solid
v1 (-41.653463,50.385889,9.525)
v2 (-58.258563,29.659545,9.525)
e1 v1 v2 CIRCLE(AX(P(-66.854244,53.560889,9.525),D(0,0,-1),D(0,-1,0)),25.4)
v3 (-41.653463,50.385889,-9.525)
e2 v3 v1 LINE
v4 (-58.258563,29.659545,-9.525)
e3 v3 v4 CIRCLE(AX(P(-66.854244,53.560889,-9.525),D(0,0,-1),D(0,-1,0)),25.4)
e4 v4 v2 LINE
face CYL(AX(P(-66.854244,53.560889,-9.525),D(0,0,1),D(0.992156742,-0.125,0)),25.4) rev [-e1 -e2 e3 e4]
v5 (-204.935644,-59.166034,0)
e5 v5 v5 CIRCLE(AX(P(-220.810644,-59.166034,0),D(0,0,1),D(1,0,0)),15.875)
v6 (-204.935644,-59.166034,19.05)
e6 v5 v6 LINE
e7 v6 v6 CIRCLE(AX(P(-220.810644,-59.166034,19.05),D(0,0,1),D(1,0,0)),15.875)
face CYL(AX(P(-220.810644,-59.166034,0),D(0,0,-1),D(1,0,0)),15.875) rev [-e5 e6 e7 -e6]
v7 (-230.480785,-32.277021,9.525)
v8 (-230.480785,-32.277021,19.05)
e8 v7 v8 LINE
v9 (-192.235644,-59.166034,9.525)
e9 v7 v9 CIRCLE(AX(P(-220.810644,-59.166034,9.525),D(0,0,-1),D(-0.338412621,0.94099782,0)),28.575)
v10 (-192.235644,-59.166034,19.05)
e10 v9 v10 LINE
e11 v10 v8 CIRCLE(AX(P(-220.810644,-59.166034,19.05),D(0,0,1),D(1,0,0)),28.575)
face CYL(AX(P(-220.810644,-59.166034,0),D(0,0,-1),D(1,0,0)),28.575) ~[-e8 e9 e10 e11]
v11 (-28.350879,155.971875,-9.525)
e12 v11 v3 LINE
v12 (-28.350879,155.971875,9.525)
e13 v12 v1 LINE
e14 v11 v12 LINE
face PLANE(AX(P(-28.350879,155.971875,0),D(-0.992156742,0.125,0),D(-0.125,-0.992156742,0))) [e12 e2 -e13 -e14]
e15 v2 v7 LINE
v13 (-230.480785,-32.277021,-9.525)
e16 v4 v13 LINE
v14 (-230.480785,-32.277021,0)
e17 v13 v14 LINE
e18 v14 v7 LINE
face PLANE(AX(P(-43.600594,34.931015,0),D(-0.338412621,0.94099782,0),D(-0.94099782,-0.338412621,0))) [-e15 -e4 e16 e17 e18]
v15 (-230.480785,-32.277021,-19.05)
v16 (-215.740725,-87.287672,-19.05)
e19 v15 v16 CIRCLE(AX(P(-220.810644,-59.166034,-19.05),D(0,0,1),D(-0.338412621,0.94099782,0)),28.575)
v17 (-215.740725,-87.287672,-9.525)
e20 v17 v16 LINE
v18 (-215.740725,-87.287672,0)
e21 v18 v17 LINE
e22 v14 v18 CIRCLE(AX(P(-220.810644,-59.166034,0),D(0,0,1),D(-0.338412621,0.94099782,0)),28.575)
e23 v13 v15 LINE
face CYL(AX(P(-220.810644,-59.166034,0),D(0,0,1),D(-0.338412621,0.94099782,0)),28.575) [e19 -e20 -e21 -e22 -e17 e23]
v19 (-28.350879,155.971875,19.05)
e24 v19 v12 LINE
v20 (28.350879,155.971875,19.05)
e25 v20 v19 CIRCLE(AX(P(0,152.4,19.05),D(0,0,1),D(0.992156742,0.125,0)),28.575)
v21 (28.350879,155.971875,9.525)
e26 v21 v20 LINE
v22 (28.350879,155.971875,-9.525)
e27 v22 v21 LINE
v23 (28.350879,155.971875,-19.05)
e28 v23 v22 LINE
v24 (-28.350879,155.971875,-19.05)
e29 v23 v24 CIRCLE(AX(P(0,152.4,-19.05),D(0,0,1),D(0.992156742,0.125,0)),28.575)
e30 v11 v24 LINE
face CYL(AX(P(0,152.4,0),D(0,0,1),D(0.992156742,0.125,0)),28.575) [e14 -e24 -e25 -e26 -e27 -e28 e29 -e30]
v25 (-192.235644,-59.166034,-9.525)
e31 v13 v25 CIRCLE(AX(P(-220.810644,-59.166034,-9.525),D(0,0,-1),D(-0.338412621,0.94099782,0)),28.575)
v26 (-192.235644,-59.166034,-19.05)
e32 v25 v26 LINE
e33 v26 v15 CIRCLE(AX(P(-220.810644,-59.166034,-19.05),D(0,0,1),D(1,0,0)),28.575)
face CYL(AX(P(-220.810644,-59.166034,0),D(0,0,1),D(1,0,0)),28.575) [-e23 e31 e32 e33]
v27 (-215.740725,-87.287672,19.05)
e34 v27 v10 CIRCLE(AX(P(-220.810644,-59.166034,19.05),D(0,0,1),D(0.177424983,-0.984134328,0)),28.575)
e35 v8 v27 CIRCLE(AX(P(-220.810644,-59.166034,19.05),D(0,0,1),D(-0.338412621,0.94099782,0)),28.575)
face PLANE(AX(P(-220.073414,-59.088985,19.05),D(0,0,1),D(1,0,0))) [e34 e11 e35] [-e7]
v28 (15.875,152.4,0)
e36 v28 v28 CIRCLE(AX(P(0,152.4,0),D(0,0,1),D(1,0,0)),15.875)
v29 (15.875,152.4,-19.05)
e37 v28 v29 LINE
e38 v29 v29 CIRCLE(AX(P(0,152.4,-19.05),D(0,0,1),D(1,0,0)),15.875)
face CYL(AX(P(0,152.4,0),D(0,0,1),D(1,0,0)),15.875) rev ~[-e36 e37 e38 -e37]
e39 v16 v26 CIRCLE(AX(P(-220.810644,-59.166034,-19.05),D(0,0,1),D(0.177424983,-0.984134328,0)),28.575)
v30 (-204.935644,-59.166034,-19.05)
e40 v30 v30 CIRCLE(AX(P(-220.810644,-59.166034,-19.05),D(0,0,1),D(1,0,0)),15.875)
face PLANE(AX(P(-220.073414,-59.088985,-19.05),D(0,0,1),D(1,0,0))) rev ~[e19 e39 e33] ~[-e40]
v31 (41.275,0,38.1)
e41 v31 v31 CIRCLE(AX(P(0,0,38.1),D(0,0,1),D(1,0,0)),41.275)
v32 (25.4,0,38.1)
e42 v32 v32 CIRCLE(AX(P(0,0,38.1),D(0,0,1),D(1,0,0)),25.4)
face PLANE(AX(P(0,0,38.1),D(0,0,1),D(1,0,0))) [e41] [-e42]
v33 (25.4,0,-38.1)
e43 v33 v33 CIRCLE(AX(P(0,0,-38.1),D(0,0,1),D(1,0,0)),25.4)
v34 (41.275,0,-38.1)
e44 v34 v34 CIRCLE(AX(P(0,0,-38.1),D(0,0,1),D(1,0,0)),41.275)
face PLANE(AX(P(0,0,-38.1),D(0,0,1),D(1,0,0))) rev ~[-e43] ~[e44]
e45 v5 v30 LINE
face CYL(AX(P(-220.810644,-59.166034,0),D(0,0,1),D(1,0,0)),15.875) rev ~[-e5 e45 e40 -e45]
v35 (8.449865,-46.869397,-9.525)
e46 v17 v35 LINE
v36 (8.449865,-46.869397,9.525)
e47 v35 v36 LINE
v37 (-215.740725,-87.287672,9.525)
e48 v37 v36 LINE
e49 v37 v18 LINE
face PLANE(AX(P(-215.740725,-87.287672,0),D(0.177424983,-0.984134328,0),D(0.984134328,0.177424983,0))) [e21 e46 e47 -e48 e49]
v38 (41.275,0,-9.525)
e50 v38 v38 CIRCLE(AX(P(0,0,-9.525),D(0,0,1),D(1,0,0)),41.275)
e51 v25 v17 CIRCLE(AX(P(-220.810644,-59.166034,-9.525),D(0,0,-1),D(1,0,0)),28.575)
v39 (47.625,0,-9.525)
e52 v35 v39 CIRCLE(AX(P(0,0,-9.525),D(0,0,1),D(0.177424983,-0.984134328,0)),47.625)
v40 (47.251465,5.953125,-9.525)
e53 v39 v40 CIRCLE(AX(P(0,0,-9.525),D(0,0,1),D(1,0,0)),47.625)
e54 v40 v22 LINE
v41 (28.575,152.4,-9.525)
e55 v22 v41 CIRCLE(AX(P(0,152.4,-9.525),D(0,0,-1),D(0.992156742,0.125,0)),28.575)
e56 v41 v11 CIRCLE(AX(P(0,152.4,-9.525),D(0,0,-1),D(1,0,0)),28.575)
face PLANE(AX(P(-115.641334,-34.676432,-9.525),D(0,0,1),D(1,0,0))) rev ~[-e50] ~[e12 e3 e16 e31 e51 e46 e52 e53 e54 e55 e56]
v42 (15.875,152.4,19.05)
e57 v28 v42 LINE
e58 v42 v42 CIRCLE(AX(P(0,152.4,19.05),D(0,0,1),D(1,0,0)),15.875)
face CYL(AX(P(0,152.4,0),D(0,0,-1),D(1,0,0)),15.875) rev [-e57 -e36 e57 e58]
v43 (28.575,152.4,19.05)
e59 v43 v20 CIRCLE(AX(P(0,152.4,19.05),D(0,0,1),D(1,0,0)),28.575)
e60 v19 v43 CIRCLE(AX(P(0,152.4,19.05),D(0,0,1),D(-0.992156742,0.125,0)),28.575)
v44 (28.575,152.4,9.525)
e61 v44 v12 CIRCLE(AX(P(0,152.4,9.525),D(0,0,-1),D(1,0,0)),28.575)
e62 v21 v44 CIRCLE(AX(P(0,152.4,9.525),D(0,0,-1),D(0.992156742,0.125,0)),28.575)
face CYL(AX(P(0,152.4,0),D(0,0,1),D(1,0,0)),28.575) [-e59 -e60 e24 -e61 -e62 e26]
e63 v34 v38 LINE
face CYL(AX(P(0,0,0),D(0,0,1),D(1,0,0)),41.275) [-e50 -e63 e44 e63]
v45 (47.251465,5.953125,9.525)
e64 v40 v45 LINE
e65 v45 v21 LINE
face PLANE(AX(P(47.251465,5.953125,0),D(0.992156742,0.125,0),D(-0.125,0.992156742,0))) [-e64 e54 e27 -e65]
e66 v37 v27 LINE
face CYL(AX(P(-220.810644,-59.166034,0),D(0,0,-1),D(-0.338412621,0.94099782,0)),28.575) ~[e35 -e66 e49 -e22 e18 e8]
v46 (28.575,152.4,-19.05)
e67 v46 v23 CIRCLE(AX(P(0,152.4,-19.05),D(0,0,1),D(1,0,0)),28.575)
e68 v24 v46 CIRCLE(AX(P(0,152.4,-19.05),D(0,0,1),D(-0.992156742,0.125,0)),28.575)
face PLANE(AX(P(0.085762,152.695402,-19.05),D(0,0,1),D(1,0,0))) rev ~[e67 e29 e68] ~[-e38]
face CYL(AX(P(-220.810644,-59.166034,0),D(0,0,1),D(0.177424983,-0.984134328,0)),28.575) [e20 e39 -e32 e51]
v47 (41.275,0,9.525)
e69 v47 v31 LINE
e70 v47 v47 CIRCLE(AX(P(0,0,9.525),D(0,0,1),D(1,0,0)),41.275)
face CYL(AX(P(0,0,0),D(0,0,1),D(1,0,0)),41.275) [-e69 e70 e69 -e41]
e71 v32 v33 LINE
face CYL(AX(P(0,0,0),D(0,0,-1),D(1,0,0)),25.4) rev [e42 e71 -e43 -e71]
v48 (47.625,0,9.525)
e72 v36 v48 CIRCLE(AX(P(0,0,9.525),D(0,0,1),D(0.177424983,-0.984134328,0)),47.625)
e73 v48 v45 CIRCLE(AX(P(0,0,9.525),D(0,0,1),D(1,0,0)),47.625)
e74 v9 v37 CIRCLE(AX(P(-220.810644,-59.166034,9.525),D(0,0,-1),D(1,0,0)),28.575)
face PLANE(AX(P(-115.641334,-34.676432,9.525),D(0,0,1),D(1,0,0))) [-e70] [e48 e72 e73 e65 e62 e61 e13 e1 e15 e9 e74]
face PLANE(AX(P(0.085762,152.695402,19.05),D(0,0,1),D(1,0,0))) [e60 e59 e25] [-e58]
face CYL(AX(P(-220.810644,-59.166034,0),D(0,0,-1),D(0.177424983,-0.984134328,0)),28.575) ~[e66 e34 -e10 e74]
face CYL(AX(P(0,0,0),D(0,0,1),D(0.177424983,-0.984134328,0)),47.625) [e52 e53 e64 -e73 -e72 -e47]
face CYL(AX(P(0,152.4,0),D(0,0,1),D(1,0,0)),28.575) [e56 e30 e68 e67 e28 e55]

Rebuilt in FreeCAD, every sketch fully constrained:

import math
import FreeCAD as App
import Part
import Sketcher
from FreeCAD import Vector
Q = App.Units.Quantity


def edges_at(feature, points):
    """Names of the edges that pass closest to the given points."""
    edges = feature.Shape.Edges
    near = lambda p: min(range(len(edges)), key=lambda i: edges[i].distToShape(Part.Vertex(*p))[0])
    return sorted({f"Edge{near(p) + 1}" for p in points})

doc = App.newDocument("Part")
body = doc.addObject("PartDesign::Body", "Body")

sketch1 = doc.addObject("Sketcher::SketchObject", "Sketch")
body.addObject(sketch1)
sketch1.AttachmentSupport = (doc.XY_Plane, [""])
sketch1.MapMode = "FlatFace"
sketch1.addGeometry(Part.LineSegment(Vector(-215.7, -87.3, 0), Vector(8.4, -46.9, 0)), False)
sketch1.addGeometry(Part.ArcOfCircle(Part.Circle(Vector(0, 0, 0), Vector(0, 0, 1), 47.6), math.radians(-80), math.radians(0)), False)
sketch1.addGeometry(Part.ArcOfCircle(Part.Circle(Vector(0, 0, 0), Vector(0, 0, 1), 47.6), math.radians(0), math.radians(7.18)), False)
sketch1.addGeometry(Part.LineSegment(Vector(47.3, 6, 0), Vector(28.4, 156, 0)), False)
sketch1.addGeometry(Part.ArcOfCircle(Part.Circle(Vector(0, 152.4, 0), Vector(0, 0, 1), 28.6), math.radians(0), math.radians(7.18)), False)
sketch1.addGeometry(Part.ArcOfCircle(Part.Circle(Vector(0, 152.4, 0), Vector(0, 0, 1), 28.6), math.radians(173), math.radians(360)), False)
sketch1.addGeometry(Part.LineSegment(Vector(-28.4, 156, 0), Vector(-43.6, 34.9, 0)), False)
sketch1.addGeometry(Part.LineSegment(Vector(-43.6, 34.9, 0), Vector(-230.5, -32.3, 0)), False)
sketch1.addGeometry(Part.ArcOfCircle(Part.Circle(Vector(-220.8, -59.2, 0), Vector(0, 0, 1), 28.6), math.radians(0), math.radians(110)), False)
sketch1.addGeometry(Part.ArcOfCircle(Part.Circle(Vector(-220.8, -59.2, 0), Vector(0, 0, 1), 28.6), math.radians(-80), math.radians(0)), False)
sketch1.addGeometry(Part.Circle(Vector(0, 0, 0), Vector(0, 0, 1), 41.3), False)
sketch1.addConstraint(Sketcher.Constraint("Tangent", 0, 2, 1, 1))
sketch1.addConstraint(Sketcher.Constraint("Tangent", 1, 2, 2, 1))
sketch1.addConstraint(Sketcher.Constraint("Tangent", 2, 2, 3, 1))
sketch1.addConstraint(Sketcher.Constraint("Tangent", 3, 2, 4, 2))
sketch1.addConstraint(Sketcher.Constraint("Tangent", 4, 1, 5, 2))
sketch1.addConstraint(Sketcher.Constraint("Tangent", 5, 1, 6, 1))
sketch1.addConstraint(Sketcher.Constraint("Coincident", 6, 2, 7, 1))
sketch1.addConstraint(Sketcher.Constraint("Tangent", 7, 2, 8, 2))
sketch1.addConstraint(Sketcher.Constraint("Tangent", 8, 1, 9, 2))
sketch1.addConstraint(Sketcher.Constraint("Tangent", 9, 1, 0, 1))
sketch1.addConstraint(Sketcher.Constraint("Coincident", 1, 3, -1, 1))
sketch1.addConstraint(Sketcher.Constraint("Coincident", 10, 3, -1, 1))
sketch1.addConstraint(Sketcher.Constraint("Equal", 1, 2))
sketch1.addConstraint(Sketcher.Constraint("Equal", 4, 5))
sketch1.addConstraint(Sketcher.Constraint("Equal", 5, 8))
sketch1.addConstraint(Sketcher.Constraint("Equal", 8, 9))
sketch1.addConstraint(Sketcher.Constraint("Symmetric", 3, 2, 5, 1, -2))
sketch1.addConstraint(Sketcher.Constraint("PointOnObject", 1, 2, -1))
sketch1.addConstraint(Sketcher.Constraint("Horizontal", 5, 3, 4, 1))
sketch1.addConstraint(Sketcher.Constraint("Horizontal", 9, 3, 8, 1))
sketch1.addConstraint(Sketcher.Constraint("Diameter", 10, Q("3.25 in")))
sketch1.addConstraint(Sketcher.Constraint("DistanceY", -1, 1, 4, 3, Q("6 in")))
sketch1.addConstraint(Sketcher.Constraint("Radius", 1, Q("1.875 in")))
sketch1.addConstraint(Sketcher.Constraint("Radius", 4, Q("1.125 in")))
sketch1.addConstraint(Sketcher.Constraint("Distance", 7, Q("198.5979 mm")))
sketch1.addConstraint(Sketcher.Constraint("DistanceX", 0, 2, 2, 2, Q("38.8016 mm")))
sketch1.addConstraint(Sketcher.Constraint("Distance", 6, Q("121.99772 mm")))
pad1 = doc.addObject("PartDesign::Pad", "Pad")
body.addObject(pad1)
pad1.Profile = sketch1
pad1.Length = Q("0.75 in")
pad1.Midplane = True

sketch2 = doc.addObject("Sketcher::SketchObject", "Sketch001")
body.addObject(sketch2)
sketch2.AttachmentSupport = (doc.XY_Plane, [""])
sketch2.MapMode = "FlatFace"
sketch2.addGeometry(Part.Circle(Vector(0, 0, 0), Vector(0, 0, 1), 41), False)
sketch2.addGeometry(Part.Circle(Vector(0, 0, 0), Vector(0, 0, 1), 25), False)
sketch2.addConstraint(Sketcher.Constraint("Coincident", 0, 3, -1, 1))
sketch2.addConstraint(Sketcher.Constraint("Coincident", 1, 3, -1, 1))
sketch2.addConstraint(Sketcher.Constraint("Diameter", 1, Q("2 in")))
sketch2.addConstraint(Sketcher.Constraint("Diameter", 0, Q("3.25 in")))
pad2 = doc.addObject("PartDesign::Pad", "Pad001")
body.addObject(pad2)
pad2.Profile = sketch2
pad2.Length = Q("3 in")
pad2.Midplane = True

sketch3 = doc.addObject("Sketcher::SketchObject", "Sketch002")
body.addObject(sketch3)
sketch3.AttachmentSupport = (doc.XY_Plane, [""])
sketch3.MapMode = "FlatFace"
sketch3.addGeometry(Part.ArcOfCircle(Part.Circle(Vector(-220.8, -59.2, 0), Vector(0, 0, 1), 28.6), math.radians(110), math.radians(280)), False)
sketch3.addGeometry(Part.ArcOfCircle(Part.Circle(Vector(-220.8, -59.2, 0), Vector(0, 0, 1), 28.6), math.radians(-80), math.radians(0)), False)
sketch3.addGeometry(Part.ArcOfCircle(Part.Circle(Vector(-220.8, -59.2, 0), Vector(0, 0, 1), 28.6), math.radians(0), math.radians(110)), False)
sketch3.addGeometry(Part.Circle(Vector(-220.8, -59.2, 0), Vector(0, 0, 1), 15.9), False)
sketch3.addGeometry(Part.ArcOfCircle(Part.Circle(Vector(0, 152.4, 0), Vector(0, 0, 1), 28.6), math.radians(0), math.radians(7.18)), False)
sketch3.addGeometry(Part.ArcOfCircle(Part.Circle(Vector(0, 152.4, 0), Vector(0, 0, 1), 28.6), math.radians(7), math.radians(173)), False)
sketch3.addGeometry(Part.ArcOfCircle(Part.Circle(Vector(0, 152.4, 0), Vector(0, 0, 1), 28.6), math.radians(173), math.radians(360)), False)
sketch3.addGeometry(Part.Circle(Vector(0, 152.4, 0), Vector(0, 0, 1), 15.9), False)
sketch3.addConstraint(Sketcher.Constraint("Tangent", 0, 2, 1, 1))
sketch3.addConstraint(Sketcher.Constraint("Tangent", 1, 2, 2, 1))
sketch3.addConstraint(Sketcher.Constraint("Tangent", 2, 2, 0, 1))
sketch3.addConstraint(Sketcher.Constraint("Tangent", 4, 2, 5, 1))
sketch3.addConstraint(Sketcher.Constraint("Tangent", 5, 2, 6, 1))
sketch3.addConstraint(Sketcher.Constraint("Tangent", 6, 2, 4, 1))
sketch3.addConstraint(Sketcher.Constraint("Coincident", 3, 3, 0, 3))
sketch3.addConstraint(Sketcher.Constraint("Coincident", 7, 3, 4, 3))
sketch3.addConstraint(Sketcher.Constraint("Equal", 2, 4))
sketch3.addConstraint(Sketcher.Constraint("Equal", 3, 7))
sketch3.addConstraint(Sketcher.Constraint("Symmetric", 4, 2, 5, 2, -2))
sketch3.addConstraint(Sketcher.Constraint("Horizontal", 3, 3, 1, 2))
sketch3.addConstraint(Sketcher.Constraint("Horizontal", 7, 3, 6, 2))
sketch3.addConstraint(Sketcher.Constraint("Diameter", 3, Q("1.25 in")))
sketch3.addConstraint(Sketcher.Constraint("DistanceY", -1, 1, 4, 3, Q("6 in")))
sketch3.addConstraint(Sketcher.Constraint("Radius", 0, Q("1.125 in")))
sketch3.addConstraint(Sketcher.Constraint("DistanceY", -1, 1, 4, 2, Q("6.140625 in")))
sketch3.addConstraint(Sketcher.Constraint("DistanceY", 2, 2, -1, 1, Q("32.277021 mm")))
sketch3.addConstraint(Sketcher.Constraint("DistanceX", 1, 3, 0, 2, Q("5.069919 mm")))
sketch3.addConstraint(Sketcher.Constraint("DistanceX", 2, 2, 0, 3, Q("9.670141 mm")))
sketch3.addConstraint(Sketcher.Constraint("DistanceX", 0, 3, -1, 1, Q("220.810644 mm")))
pad3 = doc.addObject("PartDesign::Pad", "Pad002")
body.addObject(pad3)
pad3.Profile = sketch3
pad3.Length = Q("1.5 in")
pad3.Midplane = True
doc.recompute()

fillet = doc.addObject("PartDesign::Fillet", "Fillet")
body.addObject(fillet)
fillet.Base = (pad3, edges_at(pad3, [(-43.601, 34.931, 0)]))
fillet.Radius = Q("1 in")

doc.recompute()
